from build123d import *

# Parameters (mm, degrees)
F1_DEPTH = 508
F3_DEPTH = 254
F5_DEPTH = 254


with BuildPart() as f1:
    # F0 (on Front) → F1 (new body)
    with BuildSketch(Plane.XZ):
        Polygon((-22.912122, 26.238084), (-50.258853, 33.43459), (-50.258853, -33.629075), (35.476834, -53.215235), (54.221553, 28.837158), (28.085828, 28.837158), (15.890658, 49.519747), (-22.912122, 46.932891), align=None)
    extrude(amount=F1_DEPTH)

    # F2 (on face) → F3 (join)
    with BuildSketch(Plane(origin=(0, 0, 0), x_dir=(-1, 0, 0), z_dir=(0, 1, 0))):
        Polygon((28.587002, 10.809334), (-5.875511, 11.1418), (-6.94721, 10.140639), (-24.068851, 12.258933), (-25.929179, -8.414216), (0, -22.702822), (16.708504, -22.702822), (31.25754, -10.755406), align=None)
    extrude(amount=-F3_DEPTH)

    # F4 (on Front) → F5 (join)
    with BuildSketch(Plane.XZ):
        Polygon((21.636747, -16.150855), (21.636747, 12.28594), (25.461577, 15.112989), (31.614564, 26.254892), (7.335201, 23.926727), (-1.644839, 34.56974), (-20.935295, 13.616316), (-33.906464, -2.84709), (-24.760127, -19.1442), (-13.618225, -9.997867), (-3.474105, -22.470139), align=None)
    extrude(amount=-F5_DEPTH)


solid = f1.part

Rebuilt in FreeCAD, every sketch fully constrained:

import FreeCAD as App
import Part
import Sketcher
from FreeCAD import Vector
Q = App.Units.Quantity


def add_polygon(sketch, points):
    """Adds a closed chain of lines whose ends are joined by coincident constraints."""
    first, n = sketch.GeometryCount, len(points)
    for a, b in zip(points, points[1:] + points[:1]):
        sketch.addGeometry(Part.LineSegment(App.Vector(*a, 0), App.Vector(*b, 0)), False)
    for i in range(n):
        sketch.addConstraint(Sketcher.Constraint("Coincident", first + i, 2, first + (i + 1) % n, 1))

doc = App.newDocument("Part")
params = doc.addObject("Spreadsheet::Sheet", "Params")
for row, (alias, value) in enumerate([
    ("pad1_length", "20 in"),
    ("pad2_length", "10 in"),
    ("pad3_length", "10 in"),
], start=1):
    params.set(f"A{row}", alias)
    params.set(f"B{row}", "=" + value)
    params.setAlias(f"B{row}", alias)

body = doc.addObject("PartDesign::Body", "Body")

sketch1 = doc.addObject("Sketcher::SketchObject", "Sketch")
body.addObject(sketch1)
sketch1.AttachmentSupport = (doc.XZ_Plane, [""])
sketch1.MapMode = "FlatFace"
add_polygon(sketch1, [(-23, 26), (-50, 33), (-50, -34), (35, -53), (54, 29), (28, 29), (16, 50), (-23, 47)])
sketch1.addConstraint(Sketcher.Constraint("Vertical", 1))
sketch1.addConstraint(Sketcher.Constraint("Horizontal", 4))
sketch1.addConstraint(Sketcher.Constraint("Vertical", 7))
sketch1.addConstraint(Sketcher.Constraint("Perpendicular", 2, 3))
sketch1.addConstraint(Sketcher.Constraint("DistanceY", 0, 2, 6, 2, 13.498301))
sketch1.addConstraint(Sketcher.Constraint("Distance", 0, 28.27779))
sketch1.addConstraint(Sketcher.Constraint("Distance", 5, 24.010241))
sketch1.addConstraint(Sketcher.Constraint("DistanceX", 4, 2, 4, 1, 26.135725))
sketch1.addConstraint(Sketcher.Constraint("DistanceY", 1, 2, 1, 1, 67.063665))
sketch1.addConstraint(Sketcher.Constraint("DistanceY", 7, 2, 7, 1, 20.694807))
sketch1.addConstraint(Sketcher.Constraint("DistanceY", -1, 1, 0, 2, 33.43459))
sketch1.addConstraint(Sketcher.Constraint("DistanceX", 6, 2, -1, 1, 22.912122))
sketch1.addConstraint(Sketcher.Constraint("DistanceY", 2, 2, 1, 2, 19.58616))
sketch1.addConstraint(Sketcher.Constraint("DistanceX", 2, 2, 3, 2, 18.744719))
sketch1.addConstraint(Sketcher.Constraint("DistanceX", 0, 2, 4, 2, 78.344681))
sketch1.addConstraint(Sketcher.Constraint("DistanceX", 5, 2, 4, 2, 12.19517))
pad1 = doc.addObject("PartDesign::Pad", "Pad")
body.addObject(pad1)
pad1.Profile = sketch1
pad1.setExpression("Length", "Params.pad1_length")

sketch2 = doc.addObject("Sketcher::SketchObject", "Sketch001")
body.addObject(sketch2)
sketch2.AttachmentSupport = (doc.XZ_Plane, [""])
sketch2.MapMode = "FlatFace"
add_polygon(sketch2, [(-28.6, 10.8), (5.9, 11.1), (6.9, 10.1), (24.1, 12.3), (25.9, -8.4), (0, -22.7), (-16.7, -22.7), (-31.3, -10.8)])
sketch2.addConstraint(Sketcher.Constraint("Horizontal", 5))
sketch2.addConstraint(Sketcher.Constraint("PointOnObject", 4, 2, -2))
sketch2.addConstraint(Sketcher.Constraint("DistanceY", -1, 1, 0, 2, 11.1418))
sketch2.addConstraint(Sketcher.Constraint("DistanceX", 7, 2, -1, 1, 28.587002))
sketch2.addConstraint(Sketcher.Constraint("DistanceX", 0, 2, 1, 2, 1.071699))
sketch2.addConstraint(Sketcher.Constraint("Distance", 1, 1.466582))
sketch2.addConstraint(Sketcher.Constraint("Distance", 2, 17.252181))
sketch2.addConstraint(Sketcher.Constraint("Distance", 6, 18.825918))
sketch2.addConstraint(Sketcher.Constraint("Distance", 7, 21.729468))
sketch2.addConstraint(Sketcher.Constraint("DistanceX", 5, 2, 5, 1, 16.708504))
sketch2.addConstraint(Sketcher.Constraint("DistanceX", -1, 1, 0, 2, 5.875511))
sketch2.addConstraint(Sketcher.Constraint("DistanceX", -1, 1, 2, 2, 24.068851))
sketch2.addConstraint(Sketcher.Constraint("DistanceX", -1, 1, 3, 2, 25.929179))
sketch2.addConstraint(Sketcher.Constraint("DistanceX", 6, 2, -1, 1, 31.25754))
sketch2.addConstraint(Sketcher.Constraint("DistanceY", 3, 2, 2, 2, 20.673149))
sketch2.addConstraint(Sketcher.Constraint("DistanceY", 4, 2, 1, 2, 32.843461))
pad2 = doc.addObject("PartDesign::Pad", "Pad001")
body.addObject(pad2)
pad2.Profile = sketch2
pad2.setExpression("Length", "Params.pad2_length")

sketch3 = doc.addObject("Sketcher::SketchObject", "Sketch002")
body.addObject(sketch3)
sketch3.AttachmentSupport = (doc.XZ_Plane, [""])
sketch3.MapMode = "FlatFace"
add_polygon(sketch3, [(21.6, -16.2), (21.6, 12.3), (25.5, 15.1), (31.6, 26.3), (7.3, 23.9), (-1.6, 34.6), (-20.9, 13.6), (-33.9, -2.8), (-24.8, -19.1), (-13.6, -10), (-3.5, -22.5)])
sketch3.addConstraint(Sketcher.Constraint("Vertical", 0))
sketch3.addConstraint(Sketcher.Constraint("DistanceX", 6, 2, -1, 1, Q("1.3349002 in")))
sketch3.addConstraint(Sketcher.Constraint("DistanceX", -1, 1, 3, 2, 7.335201))
sketch3.addConstraint(Sketcher.Constraint("DistanceY", 7, 2, -1, 1, 19.1442))
sketch3.addConstraint(Sketcher.Constraint("DistanceY", 0, 2, 4, 2, 22.2838))
sketch3.addConstraint(Sketcher.Constraint("Distance", 1, 4.75621))
sketch3.addConstraint(Sketcher.Constraint("Distance", 2, 12.727971))
sketch3.addConstraint(Sketcher.Constraint("Distance", 4, 13.925331))
sketch3.addConstraint(Sketcher.Constraint("Distance", 8, 14.415179))
sketch3.addConstraint(Sketcher.Constraint("DistanceY", 0, 1, 0, 2, 28.436795))
sketch3.addConstraint(Sketcher.Constraint("DistanceY", -1, 1, 0, 2, 12.28594))
sketch3.addConstraint(Sketcher.Constraint("DistanceY", -1, 1, 1, 2, 15.112989))
sketch3.addConstraint(Sketcher.Constraint("DistanceX", 4, 2, -1, 1, 1.644839))
sketch3.addConstraint(Sketcher.Constraint("DistanceY", 6, 2, -1, 1, 2.84709))
sketch3.addConstraint(Sketcher.Constraint("DistanceY", 9, 2, -1, 1, 22.470139))
sketch3.addConstraint(Sketcher.Constraint("DistanceY", 2, 2, 4, 2, 8.314848))
sketch3.addConstraint(Sketcher.Constraint("DistanceY", 5, 2, 3, 2, 10.310411))
sketch3.addConstraint(Sketcher.Constraint("DistanceX", 5, 2, 0, 2, 42.572042))
sketch3.addConstraint(Sketcher.Constraint("DistanceX", 6, 2, 5, 2, 12.971169))
sketch3.addConstraint(Sketcher.Constraint("DistanceX", 7, 2, 3, 2, 32.095328))
sketch3.addConstraint(Sketcher.Constraint("DistanceX", 6, 2, 8, 2, 20.288239))
sketch3.addConstraint(Sketcher.Constraint("DistanceX", 8, 2, 9, 2, 10.14412))
pad3 = doc.addObject("PartDesign::Pad", "Pad002")
body.addObject(pad3)
pad3.Profile = sketch3
pad3.setExpression("Length", "Params.pad3_length")
pad3.Reversed = True

doc.recompute()
